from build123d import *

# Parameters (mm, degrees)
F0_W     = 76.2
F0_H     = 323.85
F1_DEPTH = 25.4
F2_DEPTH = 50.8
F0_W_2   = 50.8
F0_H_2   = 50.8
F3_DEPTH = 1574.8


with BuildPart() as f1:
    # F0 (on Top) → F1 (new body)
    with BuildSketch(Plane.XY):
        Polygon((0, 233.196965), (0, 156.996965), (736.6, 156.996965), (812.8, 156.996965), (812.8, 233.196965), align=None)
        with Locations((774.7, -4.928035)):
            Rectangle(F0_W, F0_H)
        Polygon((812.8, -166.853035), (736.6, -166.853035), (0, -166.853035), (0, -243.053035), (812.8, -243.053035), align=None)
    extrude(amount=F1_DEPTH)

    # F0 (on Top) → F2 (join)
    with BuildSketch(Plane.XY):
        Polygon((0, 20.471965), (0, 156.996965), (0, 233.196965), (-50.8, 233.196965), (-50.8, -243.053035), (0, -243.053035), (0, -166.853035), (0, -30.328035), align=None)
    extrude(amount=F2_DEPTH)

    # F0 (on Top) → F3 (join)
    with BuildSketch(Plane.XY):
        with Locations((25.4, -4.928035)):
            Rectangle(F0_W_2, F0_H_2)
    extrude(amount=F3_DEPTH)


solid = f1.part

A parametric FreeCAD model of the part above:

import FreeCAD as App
import Part
import Sketcher
from FreeCAD import Vector
Q = App.Units.Quantity


def add_polygon(sketch, points):
    """Adds a closed chain of lines whose ends are joined by coincident constraints."""
    first, n = sketch.GeometryCount, len(points)
    for a, b in zip(points, points[1:] + points[:1]):
        sketch.addGeometry(Part.LineSegment(App.Vector(*a, 0), App.Vector(*b, 0)), False)
    for i in range(n):
        sketch.addConstraint(Sketcher.Constraint("Coincident", first + i, 2, first + (i + 1) % n, 1))

doc = App.newDocument("Part")
body = doc.addObject("PartDesign::Body", "Body")

# Sketch on XY plane
sketch1 = doc.addObject("Sketcher::SketchObject", "Sketch")
body.addObject(sketch1)
sketch1.AttachmentSupport = (doc.XY_Plane, [""])
sketch1.MapMode = "FlatFace"
add_polygon(sketch1, [(0, 233.196965), (0, 156.996965), (736.6, 156.996965), (736.6, -166.853035), (0, -166.853035), (0, -243.053035), (812.8, -243.053035), (812.8, 233.196965)])  # lines 0-7
sketch1.addConstraint(Sketcher.Constraint("Vertical", 0))
sketch1.addConstraint(Sketcher.Constraint("Horizontal", 1))
sketch1.addConstraint(Sketcher.Constraint("Vertical", 2))
sketch1.addConstraint(Sketcher.Constraint("Horizontal", 3))
sketch1.addConstraint(Sketcher.Constraint("Vertical", 4))
sketch1.addConstraint(Sketcher.Constraint("Horizontal", 5))
sketch1.addConstraint(Sketcher.Constraint("Vertical", 6))
sketch1.addConstraint(Sketcher.Constraint("Horizontal", 7))
sketch1.addConstraint(Sketcher.Constraint("PointOnObject", 0, 2, -2))
sketch1.addConstraint(Sketcher.Constraint("PointOnObject", 3, 2, -2))
sketch1.addConstraint(Sketcher.Constraint("Equal", 0, 4))
sketch1.addConstraint(Sketcher.Constraint("DistanceX", 1, 1, 1, 2, Q("29 in")))
sketch1.addConstraint(Sketcher.Constraint("DistanceX", 5, 1, 5, 2, Q("32 in")))
sketch1.addConstraint(Sketcher.Constraint("DistanceY", 0, 2, 0, 1, Q("3 in")))
sketch1.addConstraint(Sketcher.Constraint("DistanceY", 2, 2, 2, 1, Q("12.75 in")))
sketch1.addConstraint(Sketcher.Constraint("DistanceY", -1, 1, 0, 2, Q("156.996965 mm")))
pad1 = doc.addObject("PartDesign::Pad", "Pad")
body.addObject(pad1)
pad1.Profile = sketch1
pad1.Length = Q("1 in")

# Sketch on XY plane
sketch2 = doc.addObject("Sketcher::SketchObject", "Sketch001")
body.addObject(sketch2)
sketch2.AttachmentSupport = (doc.XY_Plane, [""])
sketch2.MapMode = "FlatFace"
add_polygon(sketch2, [(0, 233.196965), (-50.8, 233.196965), (-50.8, -243.053035), (0, -243.053035)])  # lines 0-3
sketch2.addConstraint(Sketcher.Constraint("Horizontal", 0))
sketch2.addConstraint(Sketcher.Constraint("Vertical", 1))
sketch2.addConstraint(Sketcher.Constraint("Horizontal", 2))
sketch2.addConstraint(Sketcher.Constraint("Vertical", 3))
sketch2.addConstraint(Sketcher.Constraint("PointOnObject", 2, 2, -2))
sketch2.addConstraint(Sketcher.Constraint("DistanceX", 0, 2, 0, 1, Q("2 in")))
sketch2.addConstraint(Sketcher.Constraint("DistanceY", 1, 2, 1, 1, Q("18.75 in")))
sketch2.addConstraint(Sketcher.Constraint("DistanceY", -1, 1, 0, 2, Q("233.196965 mm")))
pad2 = doc.addObject("PartDesign::Pad", "Pad001")
body.addObject(pad2)
pad2.Profile = sketch2
pad2.Length = Q("2 in")

# Sketch on XY plane
sketch3 = doc.addObject("Sketcher::SketchObject", "Sketch002")
body.addObject(sketch3)
sketch3.AttachmentSupport = (doc.XY_Plane, [""])
sketch3.MapMode = "FlatFace"
add_polygon(sketch3, [(0, 20.471965), (0, -30.328035), (50.8, -30.328035), (50.8, 20.471965)])  # lines 0-3
sketch3.addConstraint(Sketcher.Constraint("Vertical", 0))
sketch3.addConstraint(Sketcher.Constraint("Horizontal", 1))
sketch3.addConstraint(Sketcher.Constraint("Vertical", 2))
sketch3.addConstraint(Sketcher.Constraint("Horizontal", 3))
sketch3.addConstraint(Sketcher.Constraint("PointOnObject", 0, 2, -2))
sketch3.addConstraint(Sketcher.Constraint("Equal", 3, 0))
sketch3.addConstraint(Sketcher.Constraint("DistanceX", 1, 1, 1, 2, Q("2 in")))
sketch3.addConstraint(Sketcher.Constraint("DistanceY", 0, 2, -1, 1, Q("30.328035 mm")))
pad3 = doc.addObject("PartDesign::Pad", "Pad002")
body.addObject(pad3)
pad3.Profile = sketch3
pad3.Length = Q("62 in")

doc.recompute()
